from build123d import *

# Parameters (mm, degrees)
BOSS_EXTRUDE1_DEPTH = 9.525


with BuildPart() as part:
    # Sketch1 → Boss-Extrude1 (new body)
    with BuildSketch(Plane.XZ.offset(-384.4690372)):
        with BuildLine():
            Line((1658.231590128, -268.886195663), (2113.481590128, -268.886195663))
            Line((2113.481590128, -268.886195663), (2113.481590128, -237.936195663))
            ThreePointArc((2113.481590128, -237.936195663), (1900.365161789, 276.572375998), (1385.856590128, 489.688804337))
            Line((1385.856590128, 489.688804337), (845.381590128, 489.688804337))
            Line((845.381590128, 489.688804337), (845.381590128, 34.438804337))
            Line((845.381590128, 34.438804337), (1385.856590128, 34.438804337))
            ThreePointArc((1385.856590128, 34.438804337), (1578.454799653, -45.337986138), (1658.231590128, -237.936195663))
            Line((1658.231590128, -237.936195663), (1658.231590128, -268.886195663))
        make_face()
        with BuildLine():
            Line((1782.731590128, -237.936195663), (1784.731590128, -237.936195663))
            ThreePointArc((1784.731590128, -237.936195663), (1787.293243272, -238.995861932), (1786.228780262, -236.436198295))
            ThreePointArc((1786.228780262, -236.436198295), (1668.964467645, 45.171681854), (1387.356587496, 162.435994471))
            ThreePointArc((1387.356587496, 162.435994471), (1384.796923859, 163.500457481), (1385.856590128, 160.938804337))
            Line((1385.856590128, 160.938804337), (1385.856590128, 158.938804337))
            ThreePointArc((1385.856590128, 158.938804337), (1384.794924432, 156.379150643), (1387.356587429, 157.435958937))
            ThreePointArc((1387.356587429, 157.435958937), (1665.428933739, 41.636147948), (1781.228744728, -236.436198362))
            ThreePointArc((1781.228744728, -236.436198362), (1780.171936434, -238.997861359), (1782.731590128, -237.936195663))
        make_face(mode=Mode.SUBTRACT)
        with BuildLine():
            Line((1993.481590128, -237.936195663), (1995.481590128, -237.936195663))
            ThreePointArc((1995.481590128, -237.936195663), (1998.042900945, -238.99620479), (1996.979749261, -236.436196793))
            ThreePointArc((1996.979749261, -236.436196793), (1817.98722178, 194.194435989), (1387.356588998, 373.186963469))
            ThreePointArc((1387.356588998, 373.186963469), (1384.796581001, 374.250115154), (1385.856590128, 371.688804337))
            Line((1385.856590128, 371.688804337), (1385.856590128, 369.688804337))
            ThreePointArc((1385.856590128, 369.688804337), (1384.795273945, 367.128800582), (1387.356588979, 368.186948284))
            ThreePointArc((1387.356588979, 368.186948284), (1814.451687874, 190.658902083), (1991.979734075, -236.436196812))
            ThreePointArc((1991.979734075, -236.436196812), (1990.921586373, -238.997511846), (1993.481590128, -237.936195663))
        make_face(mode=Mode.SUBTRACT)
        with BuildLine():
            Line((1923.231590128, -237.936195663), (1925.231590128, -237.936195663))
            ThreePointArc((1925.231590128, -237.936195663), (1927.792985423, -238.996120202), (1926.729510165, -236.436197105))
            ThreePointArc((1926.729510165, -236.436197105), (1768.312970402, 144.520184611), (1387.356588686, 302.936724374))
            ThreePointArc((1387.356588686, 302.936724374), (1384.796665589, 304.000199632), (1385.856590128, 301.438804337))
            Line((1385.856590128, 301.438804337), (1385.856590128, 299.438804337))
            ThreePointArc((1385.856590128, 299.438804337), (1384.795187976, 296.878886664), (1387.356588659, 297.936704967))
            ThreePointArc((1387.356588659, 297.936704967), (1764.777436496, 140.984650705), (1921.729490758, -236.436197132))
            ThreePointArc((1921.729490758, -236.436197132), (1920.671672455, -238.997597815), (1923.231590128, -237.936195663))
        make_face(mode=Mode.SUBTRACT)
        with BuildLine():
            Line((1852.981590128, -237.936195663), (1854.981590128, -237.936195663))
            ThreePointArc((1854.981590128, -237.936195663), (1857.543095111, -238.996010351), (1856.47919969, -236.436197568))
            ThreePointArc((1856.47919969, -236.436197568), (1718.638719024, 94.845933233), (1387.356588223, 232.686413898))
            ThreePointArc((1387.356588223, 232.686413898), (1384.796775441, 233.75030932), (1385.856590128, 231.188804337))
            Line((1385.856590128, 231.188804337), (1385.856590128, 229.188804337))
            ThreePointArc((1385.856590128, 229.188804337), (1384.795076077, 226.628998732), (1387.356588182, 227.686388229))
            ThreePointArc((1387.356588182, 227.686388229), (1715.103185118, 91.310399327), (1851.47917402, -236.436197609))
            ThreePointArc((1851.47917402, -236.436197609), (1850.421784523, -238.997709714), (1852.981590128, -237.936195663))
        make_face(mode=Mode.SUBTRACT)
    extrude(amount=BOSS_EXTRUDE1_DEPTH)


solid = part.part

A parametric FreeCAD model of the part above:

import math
import FreeCAD as App
import Part
import Sketcher

V = App.Vector

doc = App.newDocument("Part")
body = doc.addObject("PartDesign::Body", "Body")

sketch1 = body.newObject("Sketcher::SketchObject", "Sketch")
sketch1.AttachmentSupport = (doc.getObject("XZ_Plane"), [""])
sketch1.MapMode = "FlatFace"
sketch1.AttachmentOffset = App.Placement(V(0, 0, -384.469037), App.Rotation())
sketch1.addGeometry([
    Part.LineSegment(V(1658.2, -268.9, 0), V(2113.5, -268.9, 0)),
    Part.LineSegment(V(2113.5, -268.9, 0), V(2113.5, -237.9, 0)),
    Part.ArcOfCircle(Part.Circle(V(1385.9, -237.9, 0), V(0, 0, 1), 727.6), math.radians(0), math.radians(90)),
    Part.LineSegment(V(1385.9, 489.7, 0), V(845.4, 489.7, 0)),
    Part.LineSegment(V(845.4, 489.7, 0), V(845.4, 34.4, 0)),
    Part.LineSegment(V(845.4, 34.4, 0), V(1385.9, 34.4, 0)),
    Part.ArcOfCircle(Part.Circle(V(1385.9, -237.9, 0), V(0, 0, 1), 272.4), math.radians(0), math.radians(90)),
    Part.LineSegment(V(1658.2, -237.9, 0), V(1658.2, -268.9, 0)),
    Part.LineSegment(V(1784.7, -237.9, 0), V(1782.7, -237.9, 0)),
    Part.ArcOfCircle(Part.Circle(V(1781.2, -237.9, 0), V(0, 0, 1), 1.5), math.radians(90), math.radians(360)),
    Part.ArcOfCircle(Part.Circle(V(1385.9, -237.9, 0), V(0, 0, 1), 395.4), math.radians(0), math.radians(90)),
    Part.ArcOfCircle(Part.Circle(V(1385.9, 157.4, 0), V(0, 0, 1), 1.5), math.radians(90), math.radians(360)),
    Part.LineSegment(V(1385.9, 158.9, 0), V(1385.9, 160.9, 0)),
    Part.ArcOfCircle(Part.Circle(V(1385.9, 162.4, 0), V(0, 0, 1), 1.5), math.radians(0), math.radians(270)),
    Part.ArcOfCircle(Part.Circle(V(1385.9, -237.9, 0), V(0, 0, 1), 400.4), math.radians(0), math.radians(90)),
    Part.ArcOfCircle(Part.Circle(V(1786.2, -237.9, 0), V(0, 0, 1), 1.5), math.radians(180), math.radians(450)),
    Part.LineSegment(V(1855, -237.9, 0), V(1853, -237.9, 0)),
    Part.ArcOfCircle(Part.Circle(V(1851.5, -237.9, 0), V(0, 0, 1), 1.5), math.radians(90), math.radians(360)),
    Part.ArcOfCircle(Part.Circle(V(1385.9, -237.9, 0), V(0, 0, 1), 465.6), math.radians(0), math.radians(90)),
    Part.ArcOfCircle(Part.Circle(V(1385.9, 227.7, 0), V(0, 0, 1), 1.5), math.radians(90), math.radians(360)),
    Part.LineSegment(V(1385.9, 229.2, 0), V(1385.9, 231.2, 0)),
    Part.ArcOfCircle(Part.Circle(V(1385.9, 232.7, 0), V(0, 0, 1), 1.5), math.radians(0), math.radians(270)),
    Part.ArcOfCircle(Part.Circle(V(1385.9, -237.9, 0), V(0, 0, 1), 470.6), math.radians(0), math.radians(90)),
    Part.ArcOfCircle(Part.Circle(V(1856.5, -237.9, 0), V(0, 0, 1), 1.5), math.radians(180), math.radians(450)),
    Part.LineSegment(V(1925.2, -237.9, 0), V(1923.2, -237.9, 0)),
    Part.ArcOfCircle(Part.Circle(V(1921.7, -237.9, 0), V(0, 0, 1), 1.5), math.radians(90), math.radians(360)),
    Part.ArcOfCircle(Part.Circle(V(1385.9, -237.9, 0), V(0, 0, 1), 535.9), math.radians(0), math.radians(90)),
    Part.ArcOfCircle(Part.Circle(V(1385.9, 297.9, 0), V(0, 0, 1), 1.5), math.radians(90), math.radians(360)),
    Part.LineSegment(V(1385.9, 299.4, 0), V(1385.9, 301.4, 0)),
    Part.ArcOfCircle(Part.Circle(V(1385.9, 302.9, 0), V(0, 0, 1), 1.5), math.radians(0), math.radians(270)),
    Part.ArcOfCircle(Part.Circle(V(1385.9, -237.9, 0), V(0, 0, 1), 540.9), math.radians(0), math.radians(90)),
    Part.ArcOfCircle(Part.Circle(V(1926.7, -237.9, 0), V(0, 0, 1), 1.5), math.radians(180), math.radians(450)),
    Part.LineSegment(V(1995.5, -237.9, 0), V(1993.5, -237.9, 0)),
    Part.ArcOfCircle(Part.Circle(V(1992, -237.9, 0), V(0, 0, 1), 1.5), math.radians(90), math.radians(360)),
    Part.ArcOfCircle(Part.Circle(V(1385.9, -237.9, 0), V(0, 0, 1), 606.1), math.radians(0), math.radians(90)),
    Part.ArcOfCircle(Part.Circle(V(1385.9, 368.2, 0), V(0, 0, 1), 1.5), math.radians(90), math.radians(360)),
    Part.LineSegment(V(1385.9, 369.7, 0), V(1385.9, 371.7, 0)),
    Part.ArcOfCircle(Part.Circle(V(1385.9, 373.2, 0), V(0, 0, 1), 1.5), math.radians(0), math.radians(270)),
    Part.ArcOfCircle(Part.Circle(V(1385.9, -237.9, 0), V(0, 0, 1), 611.1), math.radians(0), math.radians(90)),
    Part.ArcOfCircle(Part.Circle(V(1997, -237.9, 0), V(0, 0, 1), 1.5), math.radians(180), math.radians(450)),
], False)
sketch1.addConstraint([
    Sketcher.Constraint("Coincident", 0, 2, 1, 1),
    Sketcher.Constraint("Tangent", 1, 2, 2, 1),
    Sketcher.Constraint("Tangent", 2, 2, 3, 1),
    Sketcher.Constraint("Coincident", 3, 2, 4, 1),
    Sketcher.Constraint("Coincident", 4, 2, 5, 1),
    Sketcher.Constraint("Tangent", 5, 2, 6, 2),
    Sketcher.Constraint("Tangent", 6, 1, 7, 1),
    Sketcher.Constraint("Coincident", 7, 2, 0, 1),
    Sketcher.Constraint("Coincident", 8, 2, 9, 2),
    Sketcher.Constraint("Coincident", 9, 1, 10, 1),
    Sketcher.Constraint("Coincident", 10, 2, 11, 2),
    Sketcher.Constraint("Coincident", 11, 1, 12, 1),
    Sketcher.Constraint("Coincident", 12, 2, 13, 2),
    Sketcher.Constraint("Coincident", 13, 1, 14, 2),
    Sketcher.Constraint("Coincident", 14, 1, 15, 2),
    Sketcher.Constraint("Coincident", 15, 1, 8, 1),
    Sketcher.Constraint("Coincident", 16, 2, 17, 2),
    Sketcher.Constraint("Coincident", 17, 1, 18, 1),
    Sketcher.Constraint("Coincident", 18, 2, 19, 2),
    Sketcher.Constraint("Coincident", 19, 1, 20, 1),
    Sketcher.Constraint("Coincident", 20, 2, 21, 2),
    Sketcher.Constraint("Coincident", 21, 1, 22, 2),
    Sketcher.Constraint("Coincident", 22, 1, 23, 2),
    Sketcher.Constraint("Coincident", 23, 1, 16, 1),
    Sketcher.Constraint("Coincident", 24, 2, 25, 2),
    Sketcher.Constraint("Coincident", 25, 1, 26, 1),
    Sketcher.Constraint("Coincident", 26, 2, 27, 2),
    Sketcher.Constraint("Coincident", 27, 1, 28, 1),
    Sketcher.Constraint("Coincident", 28, 2, 29, 2),
    Sketcher.Constraint("Coincident", 29, 1, 30, 2),
    Sketcher.Constraint("Coincident", 30, 1, 31, 2),
    Sketcher.Constraint("Coincident", 31, 1, 24, 1),
    Sketcher.Constraint("Coincident", 32, 2, 33, 2),
    Sketcher.Constraint("Coincident", 33, 1, 34, 1),
    Sketcher.Constraint("Coincident", 34, 2, 35, 2),
    Sketcher.Constraint("Coincident", 35, 1, 36, 1),
    Sketcher.Constraint("Coincident", 36, 2, 37, 2),
    Sketcher.Constraint("Coincident", 37, 1, 38, 2),
    Sketcher.Constraint("Coincident", 38, 1, 39, 2),
    Sketcher.Constraint("Coincident", 39, 1, 32, 1),
    Sketcher.Constraint("Horizontal", 0),
    Sketcher.Constraint("Vertical", 1),
    Sketcher.Constraint("Horizontal", 3),
    Sketcher.Constraint("Vertical", 4),
    Sketcher.Constraint("Horizontal", 5),
    Sketcher.Constraint("Vertical", 7),
    Sketcher.Constraint("Horizontal", 8),
    Sketcher.Constraint("Vertical", 12),
    Sketcher.Constraint("Horizontal", 16),
    Sketcher.Constraint("Vertical", 20),
    Sketcher.Constraint("Horizontal", 24),
    Sketcher.Constraint("Vertical", 28),
    Sketcher.Constraint("Horizontal", 32),
    Sketcher.Constraint("Vertical", 36),
    Sketcher.Constraint("Coincident", 6, 3, 2, 3),
    Sketcher.Constraint("Coincident", 10, 3, 2, 3),
    Sketcher.Constraint("Coincident", 14, 3, 2, 3),
    Sketcher.Constraint("Coincident", 18, 3, 2, 3),
    Sketcher.Constraint("Coincident", 22, 3, 2, 3),
    Sketcher.Constraint("Coincident", 26, 3, 2, 3),
    Sketcher.Constraint("Coincident", 30, 3, 2, 3),
    Sketcher.Constraint("Coincident", 34, 3, 2, 3),
    Sketcher.Constraint("Coincident", 38, 3, 2, 3),
    Sketcher.Constraint("Equal", 9, 11),
    Sketcher.Constraint("Equal", 11, 13),
    Sketcher.Constraint("Equal", 13, 15),
    Sketcher.Constraint("Equal", 15, 17),
    Sketcher.Constraint("Equal", 17, 19),
    Sketcher.Constraint("Equal", 19, 21),
    Sketcher.Constraint("Equal", 21, 23),
    Sketcher.Constraint("Equal", 23, 25),
    Sketcher.Constraint("Equal", 25, 27),
    Sketcher.Constraint("Equal", 27, 29),
    Sketcher.Constraint("Equal", 29, 31),
    Sketcher.Constraint("Equal", 31, 33),
    Sketcher.Constraint("Equal", 33, 35),
    Sketcher.Constraint("Equal", 35, 37),
    Sketcher.Constraint("Equal", 37, 39),
    Sketcher.Constraint("Horizontal", 6, 3, 9, 3),
    Sketcher.Constraint("Horizontal", 14, 3, 15, 3),
    Sketcher.Constraint("Horizontal", 15, 3, 17, 3),
    Sketcher.Constraint("Horizontal", 22, 3, 23, 3),
    Sketcher.Constraint("Horizontal", 23, 3, 25, 3),
    Sketcher.Constraint("Horizontal", 30, 3, 31, 3),
    Sketcher.Constraint("Horizontal", 31, 3, 33, 3),
    Sketcher.Constraint("Horizontal", 38, 3, 39, 3),
    Sketcher.Constraint("Horizontal", 6, 1, 8, 2),
    Sketcher.Constraint("Horizontal", 15, 1, 16, 2),
    Sketcher.Constraint("Horizontal", 23, 1, 24, 2),
    Sketcher.Constraint("Horizontal", 31, 1, 32, 2),
    Sketcher.Constraint("Vertical", 10, 3, 11, 3),
    Sketcher.Constraint("Vertical", 11, 3, 13, 3),
    Sketcher.Constraint("Vertical", 18, 3, 19, 3),
    Sketcher.Constraint("Vertical", 19, 3, 21, 3),
    Sketcher.Constraint("Vertical", 26, 3, 27, 3),
    Sketcher.Constraint("Vertical", 27, 3, 29, 3),
    Sketcher.Constraint("Vertical", 34, 3, 35, 3),
    Sketcher.Constraint("Vertical", 35, 3, 37, 3),
    Sketcher.Constraint("Vertical", 5, 2, 11, 1),
    Sketcher.Constraint("Vertical", 12, 2, 19, 1),
    Sketcher.Constraint("Vertical", 20, 2, 27, 1),
    Sketcher.Constraint("Vertical", 28, 2, 35, 1),
    Sketcher.Constraint("Equal", 8, 16),
    Sketcher.Constraint("Equal", 16, 24),
    Sketcher.Constraint("Equal", 24, 32),
    Sketcher.Constraint("Equal", 32, 12),
    Sketcher.Constraint("Equal", 12, 20),
    Sketcher.Constraint("Equal", 20, 28),
    Sketcher.Constraint("Equal", 28, 36),
    Sketcher.Constraint("Radius", 9, 1.5),
    Sketcher.Constraint("DistanceX", 8, 2, 8, 1, 2.0),
    Sketcher.Constraint("Radius", 2, 727.625),
    Sketcher.Constraint("Radius", 6, 272.375),
    Sketcher.Constraint("Radius", 10, 395.375),
    Sketcher.Constraint("Radius", 14, 400.375),
    Sketcher.Constraint("Radius", 18, 465.625),
    Sketcher.Constraint("Radius", 22, 470.625),
    Sketcher.Constraint("Radius", 26, 535.875),
    Sketcher.Constraint("Radius", 30, 540.875),
    Sketcher.Constraint("Radius", 34, 606.125),
    Sketcher.Constraint("Radius", 38, 611.125),
    Sketcher.Constraint("DistanceY", 1, 1, 1, 2, 30.95),
    Sketcher.Constraint("DistanceX", 3, 2, 3, 1, 540.475),
    Sketcher.Constraint("DistanceY", 9, 1, -1, 1, 236.436198),
    Sketcher.Constraint("DistanceX", -1, 1, 22, 1, 1856.4792),
    Sketcher.Constraint("DistanceX", -1, 1, 9, 3, 1781.23159),
    Sketcher.Constraint("DistanceX", -1, 1, 17, 3, 1851.48159),
    Sketcher.Constraint("DistanceX", -1, 1, 25, 3, 1921.73159),
    Sketcher.Constraint("DistanceX", -1, 1, 33, 3, 1991.98159),
    Sketcher.Constraint("DistanceY", -1, 1, 11, 3, 157.438804),
    Sketcher.Constraint("DistanceY", -1, 1, 19, 3, 227.688804),
    Sketcher.Constraint("DistanceY", -1, 1, 27, 3, 297.938804),
    Sketcher.Constraint("DistanceY", -1, 1, 35, 3, 368.188804),
])
pad1 = body.newObject("PartDesign::Pad", "Pad")
pad1.Profile = sketch1
pad1.Length = 9.525

doc.recompute()
